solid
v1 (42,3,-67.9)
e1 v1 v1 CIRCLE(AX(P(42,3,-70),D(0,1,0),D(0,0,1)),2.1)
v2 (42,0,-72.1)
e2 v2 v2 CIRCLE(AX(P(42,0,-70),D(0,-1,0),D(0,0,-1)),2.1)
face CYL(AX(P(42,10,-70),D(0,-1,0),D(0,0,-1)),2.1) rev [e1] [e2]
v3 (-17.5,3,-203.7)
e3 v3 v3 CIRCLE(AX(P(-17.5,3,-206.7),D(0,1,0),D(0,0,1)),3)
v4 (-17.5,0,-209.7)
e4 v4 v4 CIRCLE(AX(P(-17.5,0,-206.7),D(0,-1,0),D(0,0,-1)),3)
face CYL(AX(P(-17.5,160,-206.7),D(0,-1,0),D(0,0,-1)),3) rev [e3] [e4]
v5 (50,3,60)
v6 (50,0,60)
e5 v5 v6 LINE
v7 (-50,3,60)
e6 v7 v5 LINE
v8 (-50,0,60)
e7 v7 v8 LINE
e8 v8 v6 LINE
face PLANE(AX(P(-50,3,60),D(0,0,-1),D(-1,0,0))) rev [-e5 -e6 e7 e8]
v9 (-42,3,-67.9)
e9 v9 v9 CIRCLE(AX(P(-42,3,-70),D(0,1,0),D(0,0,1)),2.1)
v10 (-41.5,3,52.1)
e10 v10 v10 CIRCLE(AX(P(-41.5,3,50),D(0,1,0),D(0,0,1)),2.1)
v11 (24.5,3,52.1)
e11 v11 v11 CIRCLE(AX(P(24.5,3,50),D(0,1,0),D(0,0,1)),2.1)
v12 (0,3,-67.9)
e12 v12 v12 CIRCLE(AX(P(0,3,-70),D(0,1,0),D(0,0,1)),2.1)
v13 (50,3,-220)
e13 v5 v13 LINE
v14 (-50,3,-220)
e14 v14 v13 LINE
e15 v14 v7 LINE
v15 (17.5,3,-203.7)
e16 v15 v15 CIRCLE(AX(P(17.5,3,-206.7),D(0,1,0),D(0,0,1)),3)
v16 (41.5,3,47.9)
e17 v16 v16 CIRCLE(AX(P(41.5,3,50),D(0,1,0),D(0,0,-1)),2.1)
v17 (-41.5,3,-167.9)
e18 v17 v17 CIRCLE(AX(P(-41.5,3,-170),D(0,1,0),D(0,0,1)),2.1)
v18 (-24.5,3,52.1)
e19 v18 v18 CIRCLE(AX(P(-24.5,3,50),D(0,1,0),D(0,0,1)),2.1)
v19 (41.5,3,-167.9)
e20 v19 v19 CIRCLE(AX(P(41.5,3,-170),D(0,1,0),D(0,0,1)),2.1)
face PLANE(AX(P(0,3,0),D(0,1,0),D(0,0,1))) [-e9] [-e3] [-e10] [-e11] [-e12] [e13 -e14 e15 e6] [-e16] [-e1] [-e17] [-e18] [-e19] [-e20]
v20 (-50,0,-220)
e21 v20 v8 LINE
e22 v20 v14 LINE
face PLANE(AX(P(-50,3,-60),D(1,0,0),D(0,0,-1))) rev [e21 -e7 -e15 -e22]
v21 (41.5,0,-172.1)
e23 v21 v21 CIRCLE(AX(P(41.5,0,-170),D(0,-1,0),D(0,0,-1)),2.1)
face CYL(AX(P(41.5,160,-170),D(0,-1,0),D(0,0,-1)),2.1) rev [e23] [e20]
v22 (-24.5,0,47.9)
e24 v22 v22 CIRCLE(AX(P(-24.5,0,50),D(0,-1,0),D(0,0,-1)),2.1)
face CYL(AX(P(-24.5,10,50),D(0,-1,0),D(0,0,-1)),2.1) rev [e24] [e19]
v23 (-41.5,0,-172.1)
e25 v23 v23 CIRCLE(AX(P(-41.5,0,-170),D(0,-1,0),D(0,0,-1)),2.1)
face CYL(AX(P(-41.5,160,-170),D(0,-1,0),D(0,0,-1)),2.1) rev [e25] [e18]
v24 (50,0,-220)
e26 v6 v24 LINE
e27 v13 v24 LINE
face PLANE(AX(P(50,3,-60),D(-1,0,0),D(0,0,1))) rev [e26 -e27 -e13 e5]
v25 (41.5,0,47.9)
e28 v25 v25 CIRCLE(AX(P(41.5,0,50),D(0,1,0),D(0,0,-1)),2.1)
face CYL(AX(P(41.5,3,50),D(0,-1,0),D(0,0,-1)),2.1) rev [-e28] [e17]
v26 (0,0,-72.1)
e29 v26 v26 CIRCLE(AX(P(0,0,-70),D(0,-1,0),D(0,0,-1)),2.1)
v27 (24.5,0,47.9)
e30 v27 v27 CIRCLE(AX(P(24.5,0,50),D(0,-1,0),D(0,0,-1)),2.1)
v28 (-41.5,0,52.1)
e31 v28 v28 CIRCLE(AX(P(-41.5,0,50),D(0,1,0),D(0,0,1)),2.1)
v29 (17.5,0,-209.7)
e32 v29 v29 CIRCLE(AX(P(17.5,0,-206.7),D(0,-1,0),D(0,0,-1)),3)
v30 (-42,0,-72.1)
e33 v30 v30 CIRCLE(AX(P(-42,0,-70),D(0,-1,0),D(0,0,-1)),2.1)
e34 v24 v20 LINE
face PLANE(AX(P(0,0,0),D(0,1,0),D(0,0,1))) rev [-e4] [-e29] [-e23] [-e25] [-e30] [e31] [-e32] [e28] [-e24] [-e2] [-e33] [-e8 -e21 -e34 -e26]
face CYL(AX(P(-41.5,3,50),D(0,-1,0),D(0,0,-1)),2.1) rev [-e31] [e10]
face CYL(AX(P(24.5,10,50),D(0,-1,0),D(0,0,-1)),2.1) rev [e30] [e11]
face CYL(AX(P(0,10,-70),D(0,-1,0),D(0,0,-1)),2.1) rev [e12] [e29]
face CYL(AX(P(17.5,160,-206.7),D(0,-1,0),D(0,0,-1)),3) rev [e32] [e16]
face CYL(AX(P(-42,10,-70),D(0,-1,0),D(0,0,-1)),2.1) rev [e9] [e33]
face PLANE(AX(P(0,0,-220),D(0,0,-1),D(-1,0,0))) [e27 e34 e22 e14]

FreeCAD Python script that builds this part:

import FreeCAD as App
import Part
import Sketcher

V = App.Vector
Q = App.Units.Quantity

doc = App.newDocument("Part")
body = doc.addObject("PartDesign::Body", "Body")

sketch1 = body.newObject("Sketcher::SketchObject", "Sketch")
sketch1.AttachmentSupport = (doc.getObject("XZ_Plane"), [""])
sketch1.MapMode = "FlatFace"
sketch1.addGeometry(Part.Circle(V(-42, -70, 0), V(0, 0, 1), 2.1), False)
sketch1.addConstraint([
    Sketcher.Constraint("Diameter", 0, Q("4.2 mm")),
    Sketcher.Constraint("DistanceX", 0, 3, -1, 1, Q("42 mm")),
    Sketcher.Constraint("DistanceY", 0, 3, -1, 1, Q("70 mm")),
])
pad1 = body.newObject("PartDesign::Pad", "Pad")
pad1.Profile = sketch1
pad1.Length = 3
pad1.Reversed = True
body2 = doc.addObject("PartDesign::Body", "Body001")

sketch2 = body2.newObject("Sketcher::SketchObject", "Sketch001")
sketch2.AttachmentSupport = (doc.getObject("XZ_Plane001"), [""])
sketch2.MapMode = "FlatFace"
sketch2.addGeometry(Part.Circle(V(0, -70, 0), V(0, 0, 1), 2.1), False)
sketch2.addConstraint([
    Sketcher.Constraint("PointOnObject", 0, 3, -2),
    Sketcher.Constraint("Diameter", 0, Q("4.2 mm")),
    Sketcher.Constraint("DistanceY", 0, 3, -1, 1, Q("70 mm")),
])
pad2 = body2.newObject("PartDesign::Pad", "Pad001")
pad2.Profile = sketch2
pad2.Length = 3
pad2.Reversed = True
body3 = doc.addObject("PartDesign::Body", "Body002")

sketch3 = body3.newObject("Sketcher::SketchObject", "Sketch002")
sketch3.AttachmentSupport = (doc.getObject("XZ_Plane002"), [""])
sketch3.MapMode = "FlatFace"
sketch3.addGeometry(Part.Circle(V(42, -70, 0), V(0, 0, 1), 2.1), False)
sketch3.addConstraint([
    Sketcher.Constraint("Diameter", 0, Q("4.2 mm")),
    Sketcher.Constraint("DistanceX", -1, 1, 0, 3, Q("42 mm")),
    Sketcher.Constraint("DistanceY", 0, 3, -1, 1, Q("70 mm")),
])
pad3 = body3.newObject("PartDesign::Pad", "Pad002")
pad3.Profile = sketch3
pad3.Length = 3
pad3.Reversed = True
body4 = doc.addObject("PartDesign::Body", "Body003")

sketch4 = body4.newObject("Sketcher::SketchObject", "Sketch003")
sketch4.AttachmentSupport = (doc.getObject("XZ_Plane003"), [""])
sketch4.MapMode = "FlatFace"
sketch4.addGeometry([
    Part.LineSegment(V(-50, -60, 0), V(-50, 60, 0)),
    Part.LineSegment(V(-50, 60, 0), V(50, 60, 0)),
    Part.LineSegment(V(50, 60, 0), V(50, -60, 0)),
    Part.LineSegment(V(50, -60, 0), V(-50, -60, 0)),
    Part.Circle(V(-41.5, 50, 0), V(0, 0, 1), 2.1),
    Part.Circle(V(41.5, 50, 0), V(0, 0, 1), 2.1),
], False)
sketch4.addConstraint([
    Sketcher.Constraint("Coincident", 0, 2, 1, 1),
    Sketcher.Constraint("Coincident", 1, 2, 2, 1),
    Sketcher.Constraint("Coincident", 2, 2, 3, 1),
    Sketcher.Constraint("Coincident", 3, 2, 0, 1),
    Sketcher.Constraint("Vertical", 0),
    Sketcher.Constraint("Horizontal", 1),
    Sketcher.Constraint("Vertical", 2),
    Sketcher.Constraint("Horizontal", 3),
    Sketcher.Constraint("Equal", 4, 5),
    Sketcher.Constraint("Symmetric", 0, 2, 2, 2, -1, 1),
    Sketcher.Constraint("Symmetric", 4, 3, 5, 3, -2),
    Sketcher.Constraint("Diameter", 4, Q("4.2 mm")),
    Sketcher.Constraint("DistanceX", 1, 1, 1, 2, Q("100 mm")),
    Sketcher.Constraint("DistanceY", 0, 1, 0, 2, Q("120 mm")),
    Sketcher.Constraint("DistanceY", -1, 1, 4, 3, Q("50 mm")),
    Sketcher.Constraint("DistanceX", 4, 3, 5, 3, Q("83 mm")),
])
pad4 = body4.newObject("PartDesign::Pad", "Pad003")
pad4.Profile = sketch4
pad4.Length = 3
pad4.Reversed = True

sketch5 = body4.newObject("Sketcher::SketchObject", "Sketch004")
sketch5.AttachmentSupport = (doc.getObject("XZ_Plane003"), [""])
sketch5.MapMode = "FlatFace"
sketch5.addGeometry([
    Part.Circle(V(24.5, 50, 0), V(0, 0, 1), 2.1),
    Part.Circle(V(-24.5, 50, 0), V(0, 0, 1), 2.1),
], False)
sketch5.addConstraint([
    Sketcher.Constraint("Equal", 0, 1),
    Sketcher.Constraint("Symmetric", 0, 3, 1, 3, -2),
    Sketcher.Constraint("Diameter", 0, Q("4.2 mm")),
    Sketcher.Constraint("DistanceY", -1, 1, 0, 3, Q("50 mm")),
    Sketcher.Constraint("DistanceX", 1, 3, 0, 3, Q("49 mm")),
])
pocket1 = body4.newObject("PartDesign::Pocket", "Pocket")
pocket1.Profile = sketch5
pocket1.Length = 10

sketch6 = body4.newObject("Sketcher::SketchObject", "Sketch005")
sketch6.AttachmentSupport = (doc.getObject("XY_Plane003"), [""])
sketch6.MapMode = "FlatFace"
sketch6.AttachmentOffset = App.Placement(V(0, 0, -60), App.Rotation())
sketch6.addGeometry([
    Part.LineSegment(V(50, 3, 0), V(50, 0, 0)),
    Part.LineSegment(V(50, 0, 0), V(-50, 0, 0)),
    Part.LineSegment(V(-50, 0, 0), V(-50, 3, 0)),
    Part.LineSegment(V(-50, 3, 0), V(50, 3, 0)),
], False)
sketch6.addConstraint([
    Sketcher.Constraint("Coincident", 0, 2, 1, 1),
    Sketcher.Constraint("Coincident", 1, 2, 2, 1),
    Sketcher.Constraint("Coincident", 2, 2, 3, 1),
    Sketcher.Constraint("Coincident", 3, 2, 0, 1),
    Sketcher.Constraint("Vertical", 0),
    Sketcher.Constraint("Horizontal", 1),
    Sketcher.Constraint("Vertical", 2),
    Sketcher.Constraint("Horizontal", 3),
    Sketcher.Constraint("Symmetric", 0, 2, 1, 2, -1, 1),
    Sketcher.Constraint("DistanceX", 1, 2, 1, 1, Q("100 mm")),
    Sketcher.Constraint("DistanceY", 0, 2, 0, 1, Q("3 mm")),
])
pad5 = body4.newObject("PartDesign::Pad", "Pad004")
pad5.Profile = sketch6
pad5.Length = 160
pad5.Reversed = True

sketch7 = body4.newObject("Sketcher::SketchObject", "Sketch006")
sketch7.AttachmentSupport = (doc.getObject("XZ_Plane003"), [""])
sketch7.MapMode = "FlatFace"
sketch7.addGeometry([
    Part.Circle(V(17.5, -206.7, 0), V(0, 0, 1), 3),
    Part.Circle(V(-17.5, -206.7, 0), V(0, 0, 1), 3),
    Part.Circle(V(-41.5, -170, 0), V(0, 0, 1), 2.1),
    Part.Circle(V(41.5, -170, 0), V(0, 0, 1), 2.1),
], False)
sketch7.addConstraint([
    Sketcher.Constraint("Equal", 0, 1),
    Sketcher.Constraint("Equal", 2, 3),
    Sketcher.Constraint("Symmetric", 0, 3, 1, 3, -2),
    Sketcher.Constraint("Symmetric", 2, 3, 3, 3, -2),
    Sketcher.Constraint("Diameter", 0, Q("6 mm")),
    Sketcher.Constraint("Diameter", 2, Q("4.2 mm")),
    Sketcher.Constraint("DistanceY", 2, 3, -1, 1, Q("170 mm")),
    Sketcher.Constraint("DistanceX", 1, 3, 0, 3, Q("35 mm")),
    Sketcher.Constraint("DistanceX", 2, 3, 1, 3, Q("24 mm")),
    Sketcher.Constraint("DistanceY", 0, 3, -1, 1, Q("206.7 mm")),
])
pocket2 = body4.newObject("PartDesign::Pocket", "Pocket001")
pocket2.Profile = sketch7
pocket2.Length = 160
body5 = doc.addObject("PartDesign::Body", "Body004")
body5.AllowCompound = True

sketch8 = body5.newObject("Sketcher::SketchObject", "Sketch007")
sketch8.AttachmentSupport = (doc.getObject("XZ_Plane004"), [""])
sketch8.MapMode = "FlatFace"
sketch8.addGeometry([
    Part.Circle(V(-42, -70, 0), V(0, 0, 1), 2.1),
    Part.Circle(V(0, -70, 0), V(0, 0, 1), 2.1),
    Part.Circle(V(42, -70, 0), V(0, 0, 1), 2.1),
], False)
sketch8.addConstraint([
    Sketcher.Constraint("Equal", 0, 1),
    Sketcher.Constraint("Equal", 1, 2),
    Sketcher.Constraint("Symmetric", 0, 3, 2, 3, -2),
    Sketcher.Constraint("PointOnObject", 1, 3, -2),
    Sketcher.Constraint("Horizontal", 0, 3, 1, 3),
    Sketcher.Constraint("Diameter", 0, Q("4.2 mm")),
    Sketcher.Constraint("DistanceX", 0, 3, -1, 1, Q("42 mm")),
    Sketcher.Constraint("DistanceY", 0, 3, -1, 1, Q("70 mm")),
])
pad6 = body5.newObject("PartDesign::Pad", "Pad005")
pad6.Profile = sketch8
pad6.Length = 10
pad6.Reversed = True
doc.recompute()

body6 = doc.addObject("PartDesign::Body", "Body005")
body6.BaseFeature = body5
boolean = body.newObject("PartDesign::Boolean", "Boolean")
boolean.Type = "Cut"
boolean.addObjects([body6])
doc.recompute()

body7 = doc.addObject("PartDesign::Body", "Body006")
body7.BaseFeature = body5
boolean2 = body2.newObject("PartDesign::Boolean", "Boolean001")
boolean2.Type = "Cut"
boolean2.addObjects([body7])
doc.recompute()

body8 = doc.addObject("PartDesign::Body", "Body007")
body8.BaseFeature = body5
boolean3 = body3.newObject("PartDesign::Boolean", "Boolean002")
boolean3.Type = "Cut"
boolean3.addObjects([body8])
doc.recompute()

boolean4 = body4.newObject("PartDesign::Boolean", "Boolean003")
boolean4.Type = "Cut"
boolean4.addObjects([body5])

doc.recompute()
